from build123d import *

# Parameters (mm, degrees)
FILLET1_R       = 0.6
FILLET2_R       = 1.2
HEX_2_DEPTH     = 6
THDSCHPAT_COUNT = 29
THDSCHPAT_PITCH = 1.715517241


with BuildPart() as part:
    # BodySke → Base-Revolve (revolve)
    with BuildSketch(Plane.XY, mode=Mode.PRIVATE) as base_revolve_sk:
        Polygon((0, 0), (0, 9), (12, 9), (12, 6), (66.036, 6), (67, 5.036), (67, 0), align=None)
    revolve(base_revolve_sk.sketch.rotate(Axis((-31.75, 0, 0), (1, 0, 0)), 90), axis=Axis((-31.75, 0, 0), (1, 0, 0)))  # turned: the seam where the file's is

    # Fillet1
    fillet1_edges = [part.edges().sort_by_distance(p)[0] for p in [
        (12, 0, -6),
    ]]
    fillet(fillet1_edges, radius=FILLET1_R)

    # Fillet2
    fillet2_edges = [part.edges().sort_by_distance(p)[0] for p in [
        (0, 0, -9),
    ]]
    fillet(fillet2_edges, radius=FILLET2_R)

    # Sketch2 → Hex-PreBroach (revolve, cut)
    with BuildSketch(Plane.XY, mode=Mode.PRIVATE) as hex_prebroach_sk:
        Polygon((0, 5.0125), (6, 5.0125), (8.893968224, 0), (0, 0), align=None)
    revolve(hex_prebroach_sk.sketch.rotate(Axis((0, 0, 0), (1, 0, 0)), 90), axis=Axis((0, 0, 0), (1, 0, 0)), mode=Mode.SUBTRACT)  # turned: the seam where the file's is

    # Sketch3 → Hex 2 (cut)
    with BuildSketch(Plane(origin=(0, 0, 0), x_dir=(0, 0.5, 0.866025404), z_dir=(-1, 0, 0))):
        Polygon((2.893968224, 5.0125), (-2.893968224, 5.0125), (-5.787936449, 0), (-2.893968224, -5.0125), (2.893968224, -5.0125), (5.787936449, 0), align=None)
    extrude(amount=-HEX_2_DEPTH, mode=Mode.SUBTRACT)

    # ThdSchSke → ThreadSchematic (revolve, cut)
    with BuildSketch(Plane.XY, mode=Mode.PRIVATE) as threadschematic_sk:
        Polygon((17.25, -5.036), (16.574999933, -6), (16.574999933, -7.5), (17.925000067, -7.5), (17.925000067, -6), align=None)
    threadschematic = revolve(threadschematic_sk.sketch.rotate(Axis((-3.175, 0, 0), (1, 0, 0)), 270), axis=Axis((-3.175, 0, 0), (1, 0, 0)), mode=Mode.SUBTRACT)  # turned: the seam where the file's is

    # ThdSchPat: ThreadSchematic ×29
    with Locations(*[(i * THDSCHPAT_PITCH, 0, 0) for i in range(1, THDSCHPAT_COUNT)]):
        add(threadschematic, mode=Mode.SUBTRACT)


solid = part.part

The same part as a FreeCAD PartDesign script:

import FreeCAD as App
import Part
import Sketcher

V = App.Vector
Q = App.Units.Quantity


def edges_at(feature, points):
    """Names of the edges that pass closest to the given points."""
    edges = feature.Shape.Edges
    near = lambda p: min(range(len(edges)), key=lambda i: edges[i].distToShape(Part.Vertex(*p))[0])
    return sorted({f"Edge{near(p) + 1}" for p in points})

doc = App.newDocument("Part")
body = doc.addObject("PartDesign::Body", "Body")

# Sketch on XY plane
sketch1 = body.newObject("Sketcher::SketchObject", "Sketch")
sketch1.AttachmentSupport = (doc.getObject("XY_Plane"), [""])
sketch1.MapMode = "FlatFace"
sketch1.addGeometry([
    Part.LineSegment(V(0, 9, 0), V(0, 0, 0)),  # 0
    Part.LineSegment(V(0, 0, 0), V(67, 0, 0)),  # 1
    Part.LineSegment(V(67, 0, 0), V(67, 5, 0)),  # 2
    Part.LineSegment(V(67, 5, 0), V(66, 6, 0)),  # 3
    Part.LineSegment(V(66, 6, 0), V(12, 6, 0)),  # 4
    Part.LineSegment(V(12, 6, 0), V(12, 9, 0)),  # 5
    Part.LineSegment(V(12, 9, 0), V(0, 9, 0)),  # 6
], False)
sketch1.addConstraint([
    Sketcher.Constraint("Coincident", 0, 2, 1, 1),
    Sketcher.Constraint("Coincident", 1, 2, 2, 1),
    Sketcher.Constraint("Coincident", 2, 2, 3, 1),
    Sketcher.Constraint("Coincident", 3, 2, 4, 1),
    Sketcher.Constraint("Coincident", 4, 2, 5, 1),
    Sketcher.Constraint("Coincident", 5, 2, 6, 1),
    Sketcher.Constraint("Coincident", 6, 2, 0, 1),
    Sketcher.Constraint("Vertical", 0),
    Sketcher.Constraint("Horizontal", 1),
    Sketcher.Constraint("Vertical", 2),
    Sketcher.Constraint("Horizontal", 4),
    Sketcher.Constraint("Vertical", 5),
    Sketcher.Constraint("Horizontal", 6),
    Sketcher.Constraint("Coincident", 0, 2, -1, 1),
    Sketcher.Constraint("DistanceX", 1, 1, 1, 2, 67.0),
    Sketcher.Constraint("DistanceX", 6, 2, 6, 1, 12.0),
    Sketcher.Constraint("DistanceY", 0, 2, 0, 1, 9.0),
    Sketcher.Constraint("DistanceY", 5, 1, 5, 2, 3.0),
    Sketcher.Constraint("Angle", 3, Q("135 deg")),
    Sketcher.Constraint("DistanceX", 4, 2, 4, 1, 54.036),
])
revolution = body.newObject("PartDesign::Revolution", "Revolution")
revolution.Profile = sketch1
revolution.ReferenceAxis = (sketch1, ["H_Axis"])
revolution.Angle = 360
doc.recompute()

fillet = body.newObject("PartDesign::Fillet", "Fillet")
fillet.Base = (revolution, edges_at(revolution, [(12, 0, -6)]))
fillet.Radius = 0.6
doc.recompute()

fillet2 = body.newObject("PartDesign::Fillet", "Fillet001")
fillet2.Base = (fillet, edges_at(fillet, [(0, 0, -9)]))
fillet2.Radius = 1.2

# Sketch on XY plane
sketch2 = body.newObject("Sketcher::SketchObject", "Sketch001")
sketch2.AttachmentSupport = (doc.getObject("XY_Plane"), [""])
sketch2.MapMode = "FlatFace"
sketch2.addGeometry([
    Part.LineSegment(V(6, 5, 0), V(0, 5, 0)),
    Part.LineSegment(V(0, 5, 0), V(0, 0, 0)),
    Part.LineSegment(V(0, 0, 0), V(9, 0, 0)),
    Part.LineSegment(V(9, 0, 0), V(6, 5, 0)),
], False)
sketch2.addConstraint([
    Sketcher.Constraint("Coincident", 0, 2, 1, 1),
    Sketcher.Constraint("Coincident", 1, 2, 2, 1),
    Sketcher.Constraint("Coincident", 2, 2, 3, 1),
    Sketcher.Constraint("Coincident", 3, 2, 0, 1),
    Sketcher.Constraint("Horizontal", 0),
    Sketcher.Constraint("Vertical", 1),
    Sketcher.Constraint("Horizontal", 2),
    Sketcher.Constraint("Coincident", 1, 2, -1, 1),
    Sketcher.Constraint("DistanceX", 0, 2, 0, 1, 6.0),
    Sketcher.Constraint("Angle", 3, Q("120 deg")),
    Sketcher.Constraint("DistanceY", 1, 2, 1, 1, 5.0125),
])
groove = body.newObject("PartDesign::Groove", "Groove")
groove.Profile = sketch2
groove.ReferenceAxis = (sketch2, ["H_Axis"])
groove.Angle = 360

# Sketch on YZ plane
sketch3 = body.newObject("Sketcher::SketchObject", "Sketch002")
sketch3.AttachmentSupport = (doc.getObject("YZ_Plane"), [""])
sketch3.MapMode = "FlatFace"
sketch3.addGeometry([
    Part.LineSegment(V(6, 0, 0), V(3, -5, 0)),  # 0
    Part.LineSegment(V(3, -5, 0), V(-3, -5, 0)),  # 1
    Part.LineSegment(V(-3, -5, 0), V(-6, 0, 0)),  # 2
    Part.LineSegment(V(-6, 0, 0), V(-3, 5, 0)),  # 3
    Part.LineSegment(V(-3, 5, 0), V(3, 5, 0)),  # 4
    Part.LineSegment(V(3, 5, 0), V(6, 0, 0)),  # 5
], False)
sketch3.addConstraint([
    Sketcher.Constraint("Coincident", 0, 2, 1, 1),
    Sketcher.Constraint("Coincident", 1, 2, 2, 1),
    Sketcher.Constraint("Coincident", 2, 2, 3, 1),
    Sketcher.Constraint("Coincident", 3, 2, 4, 1),
    Sketcher.Constraint("Coincident", 4, 2, 5, 1),
    Sketcher.Constraint("Coincident", 5, 2, 0, 1),
    Sketcher.Constraint("Horizontal", 1),
    Sketcher.Constraint("Horizontal", 4),
    Sketcher.Constraint("Symmetric", 0, 2, 3, 2, -1, 1),
    Sketcher.Constraint("Symmetric", 2, 2, 5, 2, -1, 1),
    Sketcher.Constraint("PointOnObject", 2, 2, -1),
    Sketcher.Constraint("Parallel", 2, 5),
    Sketcher.Constraint("Vertical", 1, 2, 3, 2),
    Sketcher.Constraint("Angle", 0, Q("-120 deg")),
    Sketcher.Constraint("DistanceY", 1, 2, 3, 2, 10.025),
    Sketcher.Constraint("DistanceX", 1, 2, 1, 1, 5.787936),
])
pocket1 = body.newObject("PartDesign::Pocket", "Pocket")
pocket1.Profile = sketch3
pocket1.Length = 6
pocket1.Reversed = True

# Sketch on XY plane
sketch4 = body.newObject("Sketcher::SketchObject", "Sketch003")
sketch4.AttachmentSupport = (doc.getObject("XY_Plane"), [""])
sketch4.MapMode = "FlatFace"
sketch4.addGeometry([
    Part.LineSegment(V(17.2, -5, 0), V(16.6, -6, 0)),  # 0
    Part.LineSegment(V(16.6, -6, 0), V(16.6, -7.5, 0)),  # 1
    Part.LineSegment(V(16.6, -7.5, 0), V(17.9, -7.5, 0)),  # 2
    Part.LineSegment(V(17.9, -7.5, 0), V(17.9, -6, 0)),  # 3
    Part.LineSegment(V(17.9, -6, 0), V(17.2, -5, 0)),  # 4
], False)
sketch4.addConstraint([
    Sketcher.Constraint("Coincident", 0, 2, 1, 1),
    Sketcher.Constraint("Coincident", 1, 2, 2, 1),
    Sketcher.Constraint("Coincident", 2, 2, 3, 1),
    Sketcher.Constraint("Coincident", 3, 2, 4, 1),
    Sketcher.Constraint("Coincident", 4, 2, 0, 1),
    Sketcher.Constraint("Vertical", 1),
    Sketcher.Constraint("Horizontal", 2),
    Sketcher.Constraint("Vertical", 3),
    Sketcher.Constraint("Horizontal", 0, 2, 3, 2),
    Sketcher.Constraint("Equal", 0, 4),
    Sketcher.Constraint("Angle", 0, Q("-125 deg")),
    Sketcher.Constraint("DistanceY", 1, 2, 1, 1, 1.5),
    Sketcher.Constraint("DistanceY", 0, 2, -1, 1, 6.0),
    Sketcher.Constraint("DistanceX", 2, 1, 2, 2, 1.35),
    Sketcher.Constraint("DistanceX", -1, 1, 4, 2, 17.25),
])
groove2 = body.newObject("PartDesign::Groove", "Groove001")
groove2.Profile = sketch4
groove2.ReferenceAxis = (sketch4, ["H_Axis"])
groove2.Angle = 360
doc.recompute()

linearpattern = body.newObject("PartDesign::LinearPattern", "LinearPattern")
linearpattern.Originals = [groove2]
linearpattern.Direction = (doc.getObject("X_Axis"), [""])
linearpattern.Mode = "offset"
linearpattern.Offset = 1.715517
linearpattern.Occurrences = 29
body.Tip = linearpattern

doc.recompute()
